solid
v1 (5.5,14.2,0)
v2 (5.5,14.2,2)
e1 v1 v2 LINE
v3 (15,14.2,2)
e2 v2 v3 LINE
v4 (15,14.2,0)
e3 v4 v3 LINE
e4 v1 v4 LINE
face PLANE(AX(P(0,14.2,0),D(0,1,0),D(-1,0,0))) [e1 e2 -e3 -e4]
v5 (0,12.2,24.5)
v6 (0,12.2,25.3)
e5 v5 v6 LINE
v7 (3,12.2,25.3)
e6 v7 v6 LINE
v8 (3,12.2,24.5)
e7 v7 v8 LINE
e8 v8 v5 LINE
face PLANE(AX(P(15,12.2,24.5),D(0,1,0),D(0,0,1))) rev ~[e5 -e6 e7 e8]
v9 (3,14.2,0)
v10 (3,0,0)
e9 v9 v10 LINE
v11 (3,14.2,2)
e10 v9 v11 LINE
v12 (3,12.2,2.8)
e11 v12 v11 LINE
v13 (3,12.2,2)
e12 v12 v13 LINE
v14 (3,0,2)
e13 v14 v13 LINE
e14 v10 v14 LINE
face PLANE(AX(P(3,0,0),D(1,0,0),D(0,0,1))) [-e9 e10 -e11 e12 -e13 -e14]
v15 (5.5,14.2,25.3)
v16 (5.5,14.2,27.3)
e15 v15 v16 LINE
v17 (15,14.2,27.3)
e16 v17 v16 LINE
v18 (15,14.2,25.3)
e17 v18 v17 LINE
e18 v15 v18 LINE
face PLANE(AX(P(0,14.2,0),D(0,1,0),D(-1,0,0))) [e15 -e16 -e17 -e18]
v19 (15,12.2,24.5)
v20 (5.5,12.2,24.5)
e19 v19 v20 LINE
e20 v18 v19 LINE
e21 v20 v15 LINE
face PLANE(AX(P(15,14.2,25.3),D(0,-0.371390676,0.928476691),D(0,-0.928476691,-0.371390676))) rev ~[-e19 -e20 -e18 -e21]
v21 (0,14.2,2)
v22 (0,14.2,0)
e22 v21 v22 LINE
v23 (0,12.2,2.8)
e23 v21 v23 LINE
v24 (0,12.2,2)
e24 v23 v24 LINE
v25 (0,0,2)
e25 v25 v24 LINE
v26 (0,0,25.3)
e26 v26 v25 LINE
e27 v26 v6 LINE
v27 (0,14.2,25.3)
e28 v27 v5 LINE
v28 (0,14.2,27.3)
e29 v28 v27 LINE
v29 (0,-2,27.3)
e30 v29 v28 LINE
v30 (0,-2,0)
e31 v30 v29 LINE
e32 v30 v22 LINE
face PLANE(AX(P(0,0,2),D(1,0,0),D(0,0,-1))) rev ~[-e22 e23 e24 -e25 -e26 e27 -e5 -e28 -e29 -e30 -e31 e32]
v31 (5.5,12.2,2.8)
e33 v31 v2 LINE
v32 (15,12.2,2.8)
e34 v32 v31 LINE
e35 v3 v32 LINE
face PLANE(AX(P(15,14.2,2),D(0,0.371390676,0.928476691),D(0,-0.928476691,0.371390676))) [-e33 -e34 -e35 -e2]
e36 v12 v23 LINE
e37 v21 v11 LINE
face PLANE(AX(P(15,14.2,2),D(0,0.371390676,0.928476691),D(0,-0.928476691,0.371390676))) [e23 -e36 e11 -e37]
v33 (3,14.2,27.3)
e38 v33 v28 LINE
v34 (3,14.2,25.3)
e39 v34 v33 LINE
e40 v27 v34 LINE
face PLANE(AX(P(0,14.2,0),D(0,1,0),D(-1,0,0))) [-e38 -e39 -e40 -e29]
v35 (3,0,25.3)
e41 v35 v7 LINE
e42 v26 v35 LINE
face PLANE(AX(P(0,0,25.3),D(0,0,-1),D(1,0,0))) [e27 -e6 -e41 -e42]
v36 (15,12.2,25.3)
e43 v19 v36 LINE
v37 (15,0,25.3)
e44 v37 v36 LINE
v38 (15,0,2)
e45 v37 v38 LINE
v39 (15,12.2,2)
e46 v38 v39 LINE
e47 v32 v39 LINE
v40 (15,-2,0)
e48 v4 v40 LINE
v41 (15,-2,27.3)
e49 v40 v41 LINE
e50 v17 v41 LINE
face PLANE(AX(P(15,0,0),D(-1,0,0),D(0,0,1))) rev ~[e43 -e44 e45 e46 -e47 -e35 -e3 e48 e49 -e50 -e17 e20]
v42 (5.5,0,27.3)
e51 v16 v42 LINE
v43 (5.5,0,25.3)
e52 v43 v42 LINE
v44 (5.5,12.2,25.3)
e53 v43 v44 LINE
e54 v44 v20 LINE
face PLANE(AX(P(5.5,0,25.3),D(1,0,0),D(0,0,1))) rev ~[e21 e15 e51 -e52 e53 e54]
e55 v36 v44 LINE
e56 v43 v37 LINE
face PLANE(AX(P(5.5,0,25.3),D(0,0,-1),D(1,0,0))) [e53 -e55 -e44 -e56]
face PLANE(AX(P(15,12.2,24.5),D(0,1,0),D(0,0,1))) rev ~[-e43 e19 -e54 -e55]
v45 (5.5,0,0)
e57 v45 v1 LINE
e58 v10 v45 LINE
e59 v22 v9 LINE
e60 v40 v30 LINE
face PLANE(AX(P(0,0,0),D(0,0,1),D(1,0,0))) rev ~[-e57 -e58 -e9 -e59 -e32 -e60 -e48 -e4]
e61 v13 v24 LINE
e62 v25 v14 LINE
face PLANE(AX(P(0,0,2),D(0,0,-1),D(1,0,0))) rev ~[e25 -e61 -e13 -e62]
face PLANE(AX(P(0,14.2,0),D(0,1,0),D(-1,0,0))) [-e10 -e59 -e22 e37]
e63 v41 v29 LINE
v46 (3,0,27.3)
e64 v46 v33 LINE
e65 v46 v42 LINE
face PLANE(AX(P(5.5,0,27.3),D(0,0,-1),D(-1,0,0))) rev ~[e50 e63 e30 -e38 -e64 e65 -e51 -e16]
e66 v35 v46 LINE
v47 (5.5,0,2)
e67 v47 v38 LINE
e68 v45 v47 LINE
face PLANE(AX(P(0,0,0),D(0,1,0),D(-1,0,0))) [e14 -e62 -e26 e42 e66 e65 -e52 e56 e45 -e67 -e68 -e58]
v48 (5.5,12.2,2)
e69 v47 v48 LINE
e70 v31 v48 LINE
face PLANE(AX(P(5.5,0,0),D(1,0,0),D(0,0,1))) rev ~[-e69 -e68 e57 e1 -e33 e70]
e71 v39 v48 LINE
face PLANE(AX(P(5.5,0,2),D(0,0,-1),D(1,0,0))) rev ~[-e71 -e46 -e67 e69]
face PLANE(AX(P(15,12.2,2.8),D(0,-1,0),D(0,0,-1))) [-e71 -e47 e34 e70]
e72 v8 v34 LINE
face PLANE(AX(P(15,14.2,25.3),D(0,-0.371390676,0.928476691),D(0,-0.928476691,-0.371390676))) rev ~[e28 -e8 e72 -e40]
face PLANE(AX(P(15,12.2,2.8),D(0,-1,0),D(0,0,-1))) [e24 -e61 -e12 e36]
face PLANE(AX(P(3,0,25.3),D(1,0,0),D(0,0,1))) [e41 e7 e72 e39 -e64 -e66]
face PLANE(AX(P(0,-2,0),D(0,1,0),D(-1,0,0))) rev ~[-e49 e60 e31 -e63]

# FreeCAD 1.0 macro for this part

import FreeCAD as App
import Part
import Sketcher
Q = App.Units.Quantity


def add_polygon(sketch, points):
    """Adds a closed chain of lines whose ends are joined by coincident constraints."""
    first, n = sketch.GeometryCount, len(points)
    for a, b in zip(points, points[1:] + points[:1]):
        sketch.addGeometry(Part.LineSegment(App.Vector(*a, 0), App.Vector(*b, 0)), False)
    for i in range(n):
        sketch.addConstraint(Sketcher.Constraint("Coincident", first + i, 2, first + (i + 1) % n, 1))

doc = App.newDocument("Part")
params = doc.addObject("Spreadsheet::Sheet", "Params")
for row, (alias, value) in enumerate([
    ("sketch1_width", "15 mm"),
    ("sketch1_height", "27.3 mm"),
    ("pad1_length", "2 mm"),
    ("sketch2_width", "3 mm"),
    ("sketch2_height", "2 mm"),
    ("pad2_length", "14.2 mm"),
    ("sketch3_width", "2 mm"),
    ("sketch3_height", "0.8 mm"),
    ("pad3_length", "15 mm"),
    ("sketch4_height", "2 mm"),
    ("sketch4_width", "2.5 mm"),
], start=1):
    params.set(f"A{row}", alias)
    params.set(f"B{row}", "=" + value)
    params.setAlias(f"B{row}", alias)

body = doc.addObject("PartDesign::Body", "Body")

# Sketch on XZ plane
sketch1 = body.newObject("Sketcher::SketchObject", "Sketch")
sketch1.AttachmentSupport = (doc.getObject("XZ_Plane"), [""])
sketch1.MapMode = "FlatFace"
add_polygon(sketch1, [(0, 0), (0, 27.3), (15, 27.3), (15, 0)])  # lines 0-3
sketch1.addConstraint([
    Sketcher.Constraint("Vertical", 0),
    Sketcher.Constraint("Horizontal", 1),
    Sketcher.Constraint("Vertical", 2),
    Sketcher.Constraint("Horizontal", 3),
    Sketcher.Constraint("Coincident", 3, 2, -1, 1),
    Sketcher.Constraint("DistanceX", 1, 1, 1, 2, Q("15 mm")),
    Sketcher.Constraint("DistanceY", 0, 1, 0, 2, Q("27.3 mm")),
])
sketch1.setExpression("Constraints[9]", "Params.sketch1_width")
sketch1.setExpression("Constraints[10]", "Params.sketch1_height")
pad1 = body.newObject("PartDesign::Pad", "Pad")
pad1.Profile = sketch1
pad1.setExpression("Length", "Params.pad1_length")

# Sketch on XZ plane
sketch2 = body.newObject("Sketcher::SketchObject", "Sketch001")
sketch2.AttachmentSupport = (doc.getObject("XZ_Plane"), [""])
sketch2.MapMode = "FlatFace"
add_polygon(sketch2, [(3, 0), (0, 0), (0, 2), (3, 2)])  # lines 0-3
add_polygon(sketch2, [(15, 0), (5.5, 0), (5.5, 2), (15, 2)])  # lines 4-7
add_polygon(sketch2, [(3, 25.3), (0, 25.3), (0, 27.3), (3, 27.3)])  # lines 8-11
add_polygon(sketch2, [(15, 25.3), (5.5, 25.3), (5.5, 27.3), (15, 27.3)])  # lines 12-15
sketch2.addConstraint([
    Sketcher.Constraint("Horizontal", 0),
    Sketcher.Constraint("Vertical", 1),
    Sketcher.Constraint("Horizontal", 2),
    Sketcher.Constraint("Vertical", 3),
    Sketcher.Constraint("Horizontal", 4),
    Sketcher.Constraint("Vertical", 5),
    Sketcher.Constraint("Horizontal", 6),
    Sketcher.Constraint("Vertical", 7),
    Sketcher.Constraint("Horizontal", 8),
    Sketcher.Constraint("Vertical", 9),
    Sketcher.Constraint("Horizontal", 10),
    Sketcher.Constraint("Vertical", 11),
    Sketcher.Constraint("Horizontal", 12),
    Sketcher.Constraint("Vertical", 13),
    Sketcher.Constraint("Horizontal", 14),
    Sketcher.Constraint("Vertical", 15),
    Sketcher.Constraint("Coincident", 0, 2, -1, 1),
    Sketcher.Constraint("PointOnObject", 4, 2, -1),
    Sketcher.Constraint("PointOnObject", 8, 2, -2),
    Sketcher.Constraint("Horizontal", 2, 2, 5, 2),
    Sketcher.Constraint("Horizontal", 11, 2, 12, 2),
    Sketcher.Constraint("Horizontal", 10, 2, 13, 2),
    Sketcher.Constraint("Vertical", 3, 2, 10, 2),
    Sketcher.Constraint("Vertical", 5, 2, 12, 2),
    Sketcher.Constraint("Vertical", 7, 2, 14, 2),
    Sketcher.Constraint("Equal", 7, 9),
    Sketcher.Constraint("DistanceX", 0, 2, 0, 1, Q("3 mm")),
    Sketcher.Constraint("DistanceY", 1, 1, 1, 2, Q("2 mm")),
    Sketcher.Constraint("DistanceX", -1, 1, 6, 2, Q("15 mm")),
    Sketcher.Constraint("DistanceY", -1, 1, 9, 2, Q("27.3 mm")),
    Sketcher.Constraint("DistanceX", 3, 2, 4, 2, Q("2.5 mm")),
])
sketch2.setExpression("Constraints[42]", "Params.sketch2_width")
sketch2.setExpression("Constraints[43]", "Params.sketch2_height")
pad2 = body.newObject("PartDesign::Pad", "Pad001")
pad2.Profile = sketch2
pad2.setExpression("Length", "Params.pad2_length")
pad2.Reversed = True

# Sketch on YZ plane
sketch3 = body.newObject("Sketcher::SketchObject", "Sketch002")
sketch3.AttachmentSupport = (doc.getObject("YZ_Plane"), [""])
sketch3.MapMode = "FlatFace"
sketch3.AttachmentOffset = App.Placement(App.Vector(0, 0, 15), App.Rotation())
add_polygon(sketch3, [(12.2, 2.8), (12.2, 2), (14.2, 2)])  # lines 0-2
add_polygon(sketch3, [(14.2, 25.3), (12.2, 25.3), (12.2, 24.5)])  # lines 3-5
sketch3.addConstraint([
    Sketcher.Constraint("Vertical", 0),
    Sketcher.Constraint("Horizontal", 1),
    Sketcher.Constraint("Horizontal", 3),
    Sketcher.Constraint("Vertical", 4),
    Sketcher.Constraint("Vertical", 2, 2, 3, 2),
    Sketcher.Constraint("Vertical", 1, 2, 5, 2),
    Sketcher.Constraint("Equal", 0, 4),
    Sketcher.Constraint("DistanceX", 1, 1, 1, 2, Q("2 mm")),
    Sketcher.Constraint("DistanceY", 0, 2, 0, 1, Q("0.8 mm")),
    Sketcher.Constraint("DistanceY", -1, 1, 0, 2, Q("2 mm")),
    Sketcher.Constraint("DistanceX", -1, 1, 0, 2, Q("12.2 mm")),
    Sketcher.Constraint("DistanceY", -1, 1, 3, 2, Q("25.3 mm")),
])
sketch3.setExpression("Constraints[13]", "Params.sketch3_width")
sketch3.setExpression("Constraints[14]", "Params.sketch3_height")
pad3 = body.newObject("PartDesign::Pad", "Pad002")
pad3.Profile = sketch3
pad3.setExpression("Length", "Params.pad3_length")
pad3.Reversed = True

# Sketch on XY plane
sketch4 = body.newObject("Sketcher::SketchObject", "Sketch003")
sketch4.AttachmentSupport = (doc.getObject("XY_Plane"), [""])
sketch4.MapMode = "FlatFace"
sketch4.AttachmentOffset = App.Placement(App.Vector(0, 0, 27.3), App.Rotation())
add_polygon(sketch4, [(3, 14.2), (3, 12.2), (5.5, 12.2), (5.5, 14.2)])  # lines 0-3
sketch4.addConstraint([
    Sketcher.Constraint("Vertical", 0),
    Sketcher.Constraint("Horizontal", 1),
    Sketcher.Constraint("Vertical", 2),
    Sketcher.Constraint("Horizontal", 3),
    Sketcher.Constraint("DistanceY", 0, 2, 0, 1, Q("2 mm")),
    Sketcher.Constraint("DistanceX", 1, 1, 1, 2, Q("2.5 mm")),
    Sketcher.Constraint("DistanceX", -1, 1, 0, 2, Q("3 mm")),
    Sketcher.Constraint("DistanceY", -1, 1, 0, 2, Q("12.2 mm")),
])
sketch4.setExpression("Constraints[8]", "Params.sketch4_height")
sketch4.setExpression("Constraints[9]", "Params.sketch4_width")
pocket1 = body.newObject("PartDesign::Pocket", "Pocket")
pocket1.Profile = sketch4
pocket1.Type = "ThroughAll"

doc.recompute()
